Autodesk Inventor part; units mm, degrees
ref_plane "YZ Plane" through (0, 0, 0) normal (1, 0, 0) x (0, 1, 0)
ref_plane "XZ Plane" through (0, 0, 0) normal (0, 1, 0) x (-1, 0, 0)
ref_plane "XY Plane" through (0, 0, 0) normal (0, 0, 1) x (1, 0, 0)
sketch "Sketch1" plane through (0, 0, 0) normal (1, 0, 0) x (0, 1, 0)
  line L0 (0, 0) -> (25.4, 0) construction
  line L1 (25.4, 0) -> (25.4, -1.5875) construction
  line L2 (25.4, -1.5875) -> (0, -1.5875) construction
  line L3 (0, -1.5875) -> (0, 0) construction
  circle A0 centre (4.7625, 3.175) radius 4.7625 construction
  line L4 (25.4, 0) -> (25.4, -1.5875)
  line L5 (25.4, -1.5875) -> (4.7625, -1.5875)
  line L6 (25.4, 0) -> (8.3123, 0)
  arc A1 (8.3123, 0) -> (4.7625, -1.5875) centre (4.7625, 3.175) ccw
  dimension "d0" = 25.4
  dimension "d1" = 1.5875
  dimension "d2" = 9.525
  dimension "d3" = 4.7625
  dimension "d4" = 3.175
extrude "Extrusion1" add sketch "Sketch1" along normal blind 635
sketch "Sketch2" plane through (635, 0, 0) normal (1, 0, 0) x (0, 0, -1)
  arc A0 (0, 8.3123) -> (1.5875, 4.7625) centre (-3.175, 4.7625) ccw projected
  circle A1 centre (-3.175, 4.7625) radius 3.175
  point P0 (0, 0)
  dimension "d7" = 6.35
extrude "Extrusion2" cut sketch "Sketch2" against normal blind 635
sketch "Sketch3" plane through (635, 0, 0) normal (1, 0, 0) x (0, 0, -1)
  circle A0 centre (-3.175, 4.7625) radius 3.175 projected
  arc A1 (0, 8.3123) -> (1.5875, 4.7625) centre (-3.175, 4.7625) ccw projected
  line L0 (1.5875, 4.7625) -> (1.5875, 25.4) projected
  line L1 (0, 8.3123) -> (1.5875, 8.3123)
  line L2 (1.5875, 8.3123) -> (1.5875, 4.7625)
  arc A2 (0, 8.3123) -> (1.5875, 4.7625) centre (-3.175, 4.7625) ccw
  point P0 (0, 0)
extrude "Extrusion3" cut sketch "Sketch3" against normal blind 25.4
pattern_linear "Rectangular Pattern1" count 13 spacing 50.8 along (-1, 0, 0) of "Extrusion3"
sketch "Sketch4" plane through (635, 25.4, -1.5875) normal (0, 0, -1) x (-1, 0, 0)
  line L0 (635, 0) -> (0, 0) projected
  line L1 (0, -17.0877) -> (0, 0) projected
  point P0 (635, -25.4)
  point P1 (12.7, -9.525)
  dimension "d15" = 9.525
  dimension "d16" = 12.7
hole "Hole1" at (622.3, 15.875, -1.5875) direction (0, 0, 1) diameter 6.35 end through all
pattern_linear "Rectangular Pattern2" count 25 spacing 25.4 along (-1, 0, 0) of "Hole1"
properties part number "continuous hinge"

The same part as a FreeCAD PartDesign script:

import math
import FreeCAD as App
import Part
import Sketcher

V = App.Vector
Q = App.Units.Quantity

doc = App.newDocument("Part")
body = doc.addObject("PartDesign::Body", "Body")

sketch1 = body.newObject("Sketcher::SketchObject", "Sketch")
sketch1.AttachmentSupport = (doc.getObject("YZ_Plane"), [""])
sketch1.MapMode = "FlatFace"
sketch1.addGeometry(Part.LineSegment(V(25.4, -1.5875, 0), V(25.4, 0, 0)), False)
sketch1.addGeometry(Part.LineSegment(V(25.4, 0, 0), V(8.3123, 0, 0)), False)
sketch1.addGeometry(Part.ArcOfCircle(Part.Circle(V(4.7625, 3.175, 0), V(0, 0, 1), 4.762531), math.radians(-41.809977), math.radians(270)), False)
sketch1.addGeometry(Part.LineSegment(V(4.7625, -1.5875, 0), V(25.4, -1.5875, 0)), False)
sketch1.addConstraint(Sketcher.Constraint("Coincident", 0, 2, 1, 1))
sketch1.addConstraint(Sketcher.Constraint("Coincident", 1, 2, 2, 1))
sketch1.addConstraint(Sketcher.Constraint("Tangent", 2, 2, 3, 1))
sketch1.addConstraint(Sketcher.Constraint("Coincident", 3, 2, 0, 1))
sketch1.addConstraint(Sketcher.Constraint("Vertical", 0))
sketch1.addConstraint(Sketcher.Constraint("Horizontal", 1))
sketch1.addConstraint(Sketcher.Constraint("Horizontal", 3))
sketch1.addConstraint(Sketcher.Constraint("PointOnObject", 0, 2, -1))
sketch1.addConstraint(Sketcher.Constraint("DistanceX", -1, 1, 0, 2, Q("1 in")))
sketch1.addConstraint(Sketcher.Constraint("Radius", 2, Q("0.1875 in")))
sketch1.addConstraint(Sketcher.Constraint("DistanceY", 0, 1, 0, 2, Q("0.0625 in")))
sketch1.addConstraint(Sketcher.Constraint("DistanceX", -1, 1, 2, 3, Q("0.1875 in")))
pad1 = body.newObject("PartDesign::Pad", "Pad")
pad1.Profile = sketch1
pad1.Length = Q("25 in")

sketch2 = body.newObject("Sketcher::SketchObject", "Sketch001")
sketch2.AttachmentSupport = (doc.getObject("YZ_Plane"), [""])
sketch2.MapMode = "FlatFace"
sketch2.AttachmentOffset = App.Placement(V(0, 0, 25 * 25.4), App.Rotation())
sketch2.addGeometry(Part.Circle(V(4.7625, 3.175, 0), V(0, 0, 1), 3.175), False)
sketch2.addConstraint(Sketcher.Constraint("Diameter", 0, Q("0.25 in")))
sketch2.addConstraint(Sketcher.Constraint("DistanceX", -1, 1, 0, 3, Q("0.1875 in")))
sketch2.addConstraint(Sketcher.Constraint("DistanceY", -1, 1, 0, 3, Q("0.125 in")))
pocket1 = body.newObject("PartDesign::Pocket", "Pocket")
pocket1.Profile = sketch2
pocket1.Length = Q("25 in")

sketch3 = body.newObject("Sketcher::SketchObject", "Sketch002")
sketch3.AttachmentSupport = (doc.getObject("YZ_Plane"), [""])
sketch3.MapMode = "FlatFace"
sketch3.AttachmentOffset = App.Placement(V(0, 0, 25 * 25.4), App.Rotation())
sketch3.addGeometry(Part.LineSegment(V(8.3123, -1.5875, 0), V(8.3123, 0, 0)), False)
sketch3.addGeometry(Part.ArcOfCircle(Part.Circle(V(4.7625, 3.175, 0), V(0, 0, 1), 4.762531), math.radians(-41.809977), math.radians(270)), False)
sketch3.addGeometry(Part.LineSegment(V(4.7625, -1.5875, 0), V(8.3123, -1.5875, 0)), False)
sketch3.addGeometry(Part.Circle(V(4.7625, 3.175, 0), V(0, 0, 1), 3.175), False)
sketch3.addConstraint(Sketcher.Constraint("Coincident", 0, 2, 1, 1))
sketch3.addConstraint(Sketcher.Constraint("Tangent", 1, 2, 2, 1))
sketch3.addConstraint(Sketcher.Constraint("Coincident", 2, 2, 0, 1))
sketch3.addConstraint(Sketcher.Constraint("Vertical", 0))
sketch3.addConstraint(Sketcher.Constraint("Horizontal", 2))
sketch3.addConstraint(Sketcher.Constraint("Coincident", 3, 3, 1, 3))
sketch3.addConstraint(Sketcher.Constraint("PointOnObject", 0, 2, -1))
sketch3.addConstraint(Sketcher.Constraint("Diameter", 3, Q("0.25 in")))
sketch3.addConstraint(Sketcher.Constraint("Radius", 1, Q("0.1875 in")))
sketch3.addConstraint(Sketcher.Constraint("DistanceY", 0, 1, 0, 2, Q("0.0625 in")))
sketch3.addConstraint(Sketcher.Constraint("DistanceX", -1, 1, 1, 3, Q("0.1875 in")))
pocket2 = body.newObject("PartDesign::Pocket", "Pocket001")
pocket2.Profile = sketch3
pocket2.Length = Q("1 in")
doc.recompute()

linearpattern = body.newObject("PartDesign::LinearPattern", "LinearPattern")
linearpattern.Originals = [pocket2]
linearpattern.Direction = (doc.getObject("X_Axis"), [""])
linearpattern.Mode = "offset"
linearpattern.Offset = Q("2 in")
linearpattern.Occurrences = 13
linearpattern.Reversed = True
body.Tip = linearpattern

sketch4 = body.newObject("Sketcher::SketchObject", "Sketch003")
sketch4.AttachmentSupport = (doc.getObject("XY_Plane"), [""])
sketch4.MapMode = "FlatFace"
sketch4.AttachmentOffset = App.Placement(V(0, 0, -0.0625 * 25.4), App.Rotation())
sketch4.addGeometry(Part.Circle(V(622.3, 15.875, 0), V(0, 0, 1), 3.175), False)
sketch4.addConstraint(Sketcher.Constraint("Diameter", 0, Q("0.25 in")))
sketch4.addConstraint(Sketcher.Constraint("DistanceX", -1, 1, 0, 3, Q("24.5 in")))
sketch4.addConstraint(Sketcher.Constraint("DistanceY", -1, 1, 0, 3, Q("0.625 in")))
doc.recompute()
hole = body.newObject("PartDesign::Hole", "Hole")
hole.Profile = sketch4
hole.ThreadType = "None"
hole.Diameter = Q("0.25 in")
hole.DepthType = "ThroughAll"
hole.Reversed = True
doc.recompute()

linearpattern2 = body.newObject("PartDesign::LinearPattern", "LinearPattern001")
linearpattern2.Originals = [hole]
linearpattern2.Direction = (doc.getObject("X_Axis"), [""])
linearpattern2.Mode = "offset"
linearpattern2.Offset = Q("1 in")
linearpattern2.Occurrences = 25
linearpattern2.Reversed = True
body.Tip = linearpattern2

doc.recompute()
